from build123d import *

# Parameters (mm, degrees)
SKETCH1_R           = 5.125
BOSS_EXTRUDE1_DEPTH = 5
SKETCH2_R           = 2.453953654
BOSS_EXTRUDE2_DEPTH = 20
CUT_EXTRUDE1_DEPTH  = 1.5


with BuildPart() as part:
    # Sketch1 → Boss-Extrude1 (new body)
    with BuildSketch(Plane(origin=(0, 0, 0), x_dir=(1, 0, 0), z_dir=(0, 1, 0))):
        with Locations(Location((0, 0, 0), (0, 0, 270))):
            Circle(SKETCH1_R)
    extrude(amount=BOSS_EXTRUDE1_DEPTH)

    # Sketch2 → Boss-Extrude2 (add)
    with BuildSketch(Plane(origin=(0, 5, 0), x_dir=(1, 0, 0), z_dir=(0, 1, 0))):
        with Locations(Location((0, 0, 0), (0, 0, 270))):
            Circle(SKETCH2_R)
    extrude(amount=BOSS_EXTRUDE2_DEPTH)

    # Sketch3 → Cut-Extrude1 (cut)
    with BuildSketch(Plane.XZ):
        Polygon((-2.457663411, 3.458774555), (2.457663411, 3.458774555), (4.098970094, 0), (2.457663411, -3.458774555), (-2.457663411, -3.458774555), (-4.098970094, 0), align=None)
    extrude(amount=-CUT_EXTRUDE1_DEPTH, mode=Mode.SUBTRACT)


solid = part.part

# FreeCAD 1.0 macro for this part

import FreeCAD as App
import Part
import Sketcher

doc = App.newDocument("Part")
params = doc.addObject("Spreadsheet::Sheet", "Params")
for row, (alias, value) in enumerate([
    ("sketch1_diameter", "10.25 mm"),
    ("pad1_length", "5 mm"),
    ("pad2_length", "20 mm"),
    ("pocket1_length", "1.5 mm"),
], start=1):
    params.set(f"A{row}", alias)
    params.set(f"B{row}", "=" + value)
    params.setAlias(f"B{row}", alias)

body = doc.addObject("PartDesign::Body", "Body")

# Sketch on XZ plane
sketch1 = body.newObject("Sketcher::SketchObject", "Sketch")
sketch1.AttachmentSupport = (doc.getObject("XZ_Plane"), [""])
sketch1.MapMode = "FlatFace"
sketch1.addGeometry(Part.Circle(App.Vector(0, 0, 0), App.Vector(0, 0, 1), 5), False)
sketch1.addConstraint(Sketcher.Constraint("Coincident", 0, 3, -1, 1))
sketch1.addConstraint(Sketcher.Constraint("Diameter", 0, 10.25))
sketch1.setExpression("Constraints[1]", "Params.sketch1_diameter")
pad1 = body.newObject("PartDesign::Pad", "Pad")
pad1.Profile = sketch1
pad1.setExpression("Length", "Params.pad1_length")
pad1.Reversed = True

# Sketch on XZ plane
sketch2 = body.newObject("Sketcher::SketchObject", "Sketch001")
sketch2.AttachmentSupport = (doc.getObject("XZ_Plane"), [""])
sketch2.MapMode = "FlatFace"
sketch2.AttachmentOffset = App.Placement(App.Vector(0, 0, -5), App.Rotation())
sketch2.addGeometry(Part.Circle(App.Vector(0, 0, 0), App.Vector(0, 0, 1), 2.5), False)
sketch2.addConstraint(Sketcher.Constraint("Coincident", 0, 3, -1, 1))
sketch2.addConstraint(Sketcher.Constraint("Diameter", 0, 4.907907))
pad2 = body.newObject("PartDesign::Pad", "Pad001")
pad2.Profile = sketch2
pad2.setExpression("Length", "Params.pad2_length")
pad2.Reversed = True

# Sketch on XZ plane
sketch3 = body.newObject("Sketcher::SketchObject", "Sketch002")
sketch3.AttachmentSupport = (doc.getObject("XZ_Plane"), [""])
sketch3.MapMode = "FlatFace"
sketch3.addGeometry(Part.LineSegment(App.Vector(2.5, 3.5, 0), App.Vector(-2.5, 3.5, 0)), False)
sketch3.addGeometry(Part.LineSegment(App.Vector(-2.5, 3.5, 0), App.Vector(-4.1, 0, 0)), False)
sketch3.addGeometry(Part.LineSegment(App.Vector(-4.1, 0, 0), App.Vector(-2.5, -3.5, 0)), False)
sketch3.addGeometry(Part.LineSegment(App.Vector(-2.5, -3.5, 0), App.Vector(2.5, -3.5, 0)), False)
sketch3.addGeometry(Part.LineSegment(App.Vector(2.5, -3.5, 0), App.Vector(4.1, 0, 0)), False)
sketch3.addGeometry(Part.LineSegment(App.Vector(4.1, 0, 0), App.Vector(2.5, 3.5, 0)), False)
sketch3.addConstraint(Sketcher.Constraint("Coincident", 0, 2, 1, 1))
sketch3.addConstraint(Sketcher.Constraint("Coincident", 1, 2, 2, 1))
sketch3.addConstraint(Sketcher.Constraint("Coincident", 2, 2, 3, 1))
sketch3.addConstraint(Sketcher.Constraint("Coincident", 3, 2, 4, 1))
sketch3.addConstraint(Sketcher.Constraint("Coincident", 4, 2, 5, 1))
sketch3.addConstraint(Sketcher.Constraint("Coincident", 5, 2, 0, 1))
sketch3.addConstraint(Sketcher.Constraint("Horizontal", 0))
sketch3.addConstraint(Sketcher.Constraint("Horizontal", 3))
sketch3.addConstraint(Sketcher.Constraint("Symmetric", 0, 2, 3, 2, -1, 1))
sketch3.addConstraint(Sketcher.Constraint("Symmetric", 1, 2, 4, 2, -1, 1))
sketch3.addConstraint(Sketcher.Constraint("PointOnObject", 1, 2, -1))
sketch3.addConstraint(Sketcher.Constraint("Parallel", 2, 5))
sketch3.addConstraint(Sketcher.Constraint("Vertical", 0, 2, 2, 2))
sketch3.addConstraint(Sketcher.Constraint("DistanceX", 0, 2, 0, 1, 4.915327))
sketch3.addConstraint(Sketcher.Constraint("DistanceX", 1, 2, -1, 1, 4.09897))
sketch3.addConstraint(Sketcher.Constraint("DistanceY", 2, 2, 0, 2, 6.917549))
pocket1 = body.newObject("PartDesign::Pocket", "Pocket")
pocket1.Profile = sketch3
pocket1.setExpression("Length", "Params.pocket1_length")

doc.recompute()
